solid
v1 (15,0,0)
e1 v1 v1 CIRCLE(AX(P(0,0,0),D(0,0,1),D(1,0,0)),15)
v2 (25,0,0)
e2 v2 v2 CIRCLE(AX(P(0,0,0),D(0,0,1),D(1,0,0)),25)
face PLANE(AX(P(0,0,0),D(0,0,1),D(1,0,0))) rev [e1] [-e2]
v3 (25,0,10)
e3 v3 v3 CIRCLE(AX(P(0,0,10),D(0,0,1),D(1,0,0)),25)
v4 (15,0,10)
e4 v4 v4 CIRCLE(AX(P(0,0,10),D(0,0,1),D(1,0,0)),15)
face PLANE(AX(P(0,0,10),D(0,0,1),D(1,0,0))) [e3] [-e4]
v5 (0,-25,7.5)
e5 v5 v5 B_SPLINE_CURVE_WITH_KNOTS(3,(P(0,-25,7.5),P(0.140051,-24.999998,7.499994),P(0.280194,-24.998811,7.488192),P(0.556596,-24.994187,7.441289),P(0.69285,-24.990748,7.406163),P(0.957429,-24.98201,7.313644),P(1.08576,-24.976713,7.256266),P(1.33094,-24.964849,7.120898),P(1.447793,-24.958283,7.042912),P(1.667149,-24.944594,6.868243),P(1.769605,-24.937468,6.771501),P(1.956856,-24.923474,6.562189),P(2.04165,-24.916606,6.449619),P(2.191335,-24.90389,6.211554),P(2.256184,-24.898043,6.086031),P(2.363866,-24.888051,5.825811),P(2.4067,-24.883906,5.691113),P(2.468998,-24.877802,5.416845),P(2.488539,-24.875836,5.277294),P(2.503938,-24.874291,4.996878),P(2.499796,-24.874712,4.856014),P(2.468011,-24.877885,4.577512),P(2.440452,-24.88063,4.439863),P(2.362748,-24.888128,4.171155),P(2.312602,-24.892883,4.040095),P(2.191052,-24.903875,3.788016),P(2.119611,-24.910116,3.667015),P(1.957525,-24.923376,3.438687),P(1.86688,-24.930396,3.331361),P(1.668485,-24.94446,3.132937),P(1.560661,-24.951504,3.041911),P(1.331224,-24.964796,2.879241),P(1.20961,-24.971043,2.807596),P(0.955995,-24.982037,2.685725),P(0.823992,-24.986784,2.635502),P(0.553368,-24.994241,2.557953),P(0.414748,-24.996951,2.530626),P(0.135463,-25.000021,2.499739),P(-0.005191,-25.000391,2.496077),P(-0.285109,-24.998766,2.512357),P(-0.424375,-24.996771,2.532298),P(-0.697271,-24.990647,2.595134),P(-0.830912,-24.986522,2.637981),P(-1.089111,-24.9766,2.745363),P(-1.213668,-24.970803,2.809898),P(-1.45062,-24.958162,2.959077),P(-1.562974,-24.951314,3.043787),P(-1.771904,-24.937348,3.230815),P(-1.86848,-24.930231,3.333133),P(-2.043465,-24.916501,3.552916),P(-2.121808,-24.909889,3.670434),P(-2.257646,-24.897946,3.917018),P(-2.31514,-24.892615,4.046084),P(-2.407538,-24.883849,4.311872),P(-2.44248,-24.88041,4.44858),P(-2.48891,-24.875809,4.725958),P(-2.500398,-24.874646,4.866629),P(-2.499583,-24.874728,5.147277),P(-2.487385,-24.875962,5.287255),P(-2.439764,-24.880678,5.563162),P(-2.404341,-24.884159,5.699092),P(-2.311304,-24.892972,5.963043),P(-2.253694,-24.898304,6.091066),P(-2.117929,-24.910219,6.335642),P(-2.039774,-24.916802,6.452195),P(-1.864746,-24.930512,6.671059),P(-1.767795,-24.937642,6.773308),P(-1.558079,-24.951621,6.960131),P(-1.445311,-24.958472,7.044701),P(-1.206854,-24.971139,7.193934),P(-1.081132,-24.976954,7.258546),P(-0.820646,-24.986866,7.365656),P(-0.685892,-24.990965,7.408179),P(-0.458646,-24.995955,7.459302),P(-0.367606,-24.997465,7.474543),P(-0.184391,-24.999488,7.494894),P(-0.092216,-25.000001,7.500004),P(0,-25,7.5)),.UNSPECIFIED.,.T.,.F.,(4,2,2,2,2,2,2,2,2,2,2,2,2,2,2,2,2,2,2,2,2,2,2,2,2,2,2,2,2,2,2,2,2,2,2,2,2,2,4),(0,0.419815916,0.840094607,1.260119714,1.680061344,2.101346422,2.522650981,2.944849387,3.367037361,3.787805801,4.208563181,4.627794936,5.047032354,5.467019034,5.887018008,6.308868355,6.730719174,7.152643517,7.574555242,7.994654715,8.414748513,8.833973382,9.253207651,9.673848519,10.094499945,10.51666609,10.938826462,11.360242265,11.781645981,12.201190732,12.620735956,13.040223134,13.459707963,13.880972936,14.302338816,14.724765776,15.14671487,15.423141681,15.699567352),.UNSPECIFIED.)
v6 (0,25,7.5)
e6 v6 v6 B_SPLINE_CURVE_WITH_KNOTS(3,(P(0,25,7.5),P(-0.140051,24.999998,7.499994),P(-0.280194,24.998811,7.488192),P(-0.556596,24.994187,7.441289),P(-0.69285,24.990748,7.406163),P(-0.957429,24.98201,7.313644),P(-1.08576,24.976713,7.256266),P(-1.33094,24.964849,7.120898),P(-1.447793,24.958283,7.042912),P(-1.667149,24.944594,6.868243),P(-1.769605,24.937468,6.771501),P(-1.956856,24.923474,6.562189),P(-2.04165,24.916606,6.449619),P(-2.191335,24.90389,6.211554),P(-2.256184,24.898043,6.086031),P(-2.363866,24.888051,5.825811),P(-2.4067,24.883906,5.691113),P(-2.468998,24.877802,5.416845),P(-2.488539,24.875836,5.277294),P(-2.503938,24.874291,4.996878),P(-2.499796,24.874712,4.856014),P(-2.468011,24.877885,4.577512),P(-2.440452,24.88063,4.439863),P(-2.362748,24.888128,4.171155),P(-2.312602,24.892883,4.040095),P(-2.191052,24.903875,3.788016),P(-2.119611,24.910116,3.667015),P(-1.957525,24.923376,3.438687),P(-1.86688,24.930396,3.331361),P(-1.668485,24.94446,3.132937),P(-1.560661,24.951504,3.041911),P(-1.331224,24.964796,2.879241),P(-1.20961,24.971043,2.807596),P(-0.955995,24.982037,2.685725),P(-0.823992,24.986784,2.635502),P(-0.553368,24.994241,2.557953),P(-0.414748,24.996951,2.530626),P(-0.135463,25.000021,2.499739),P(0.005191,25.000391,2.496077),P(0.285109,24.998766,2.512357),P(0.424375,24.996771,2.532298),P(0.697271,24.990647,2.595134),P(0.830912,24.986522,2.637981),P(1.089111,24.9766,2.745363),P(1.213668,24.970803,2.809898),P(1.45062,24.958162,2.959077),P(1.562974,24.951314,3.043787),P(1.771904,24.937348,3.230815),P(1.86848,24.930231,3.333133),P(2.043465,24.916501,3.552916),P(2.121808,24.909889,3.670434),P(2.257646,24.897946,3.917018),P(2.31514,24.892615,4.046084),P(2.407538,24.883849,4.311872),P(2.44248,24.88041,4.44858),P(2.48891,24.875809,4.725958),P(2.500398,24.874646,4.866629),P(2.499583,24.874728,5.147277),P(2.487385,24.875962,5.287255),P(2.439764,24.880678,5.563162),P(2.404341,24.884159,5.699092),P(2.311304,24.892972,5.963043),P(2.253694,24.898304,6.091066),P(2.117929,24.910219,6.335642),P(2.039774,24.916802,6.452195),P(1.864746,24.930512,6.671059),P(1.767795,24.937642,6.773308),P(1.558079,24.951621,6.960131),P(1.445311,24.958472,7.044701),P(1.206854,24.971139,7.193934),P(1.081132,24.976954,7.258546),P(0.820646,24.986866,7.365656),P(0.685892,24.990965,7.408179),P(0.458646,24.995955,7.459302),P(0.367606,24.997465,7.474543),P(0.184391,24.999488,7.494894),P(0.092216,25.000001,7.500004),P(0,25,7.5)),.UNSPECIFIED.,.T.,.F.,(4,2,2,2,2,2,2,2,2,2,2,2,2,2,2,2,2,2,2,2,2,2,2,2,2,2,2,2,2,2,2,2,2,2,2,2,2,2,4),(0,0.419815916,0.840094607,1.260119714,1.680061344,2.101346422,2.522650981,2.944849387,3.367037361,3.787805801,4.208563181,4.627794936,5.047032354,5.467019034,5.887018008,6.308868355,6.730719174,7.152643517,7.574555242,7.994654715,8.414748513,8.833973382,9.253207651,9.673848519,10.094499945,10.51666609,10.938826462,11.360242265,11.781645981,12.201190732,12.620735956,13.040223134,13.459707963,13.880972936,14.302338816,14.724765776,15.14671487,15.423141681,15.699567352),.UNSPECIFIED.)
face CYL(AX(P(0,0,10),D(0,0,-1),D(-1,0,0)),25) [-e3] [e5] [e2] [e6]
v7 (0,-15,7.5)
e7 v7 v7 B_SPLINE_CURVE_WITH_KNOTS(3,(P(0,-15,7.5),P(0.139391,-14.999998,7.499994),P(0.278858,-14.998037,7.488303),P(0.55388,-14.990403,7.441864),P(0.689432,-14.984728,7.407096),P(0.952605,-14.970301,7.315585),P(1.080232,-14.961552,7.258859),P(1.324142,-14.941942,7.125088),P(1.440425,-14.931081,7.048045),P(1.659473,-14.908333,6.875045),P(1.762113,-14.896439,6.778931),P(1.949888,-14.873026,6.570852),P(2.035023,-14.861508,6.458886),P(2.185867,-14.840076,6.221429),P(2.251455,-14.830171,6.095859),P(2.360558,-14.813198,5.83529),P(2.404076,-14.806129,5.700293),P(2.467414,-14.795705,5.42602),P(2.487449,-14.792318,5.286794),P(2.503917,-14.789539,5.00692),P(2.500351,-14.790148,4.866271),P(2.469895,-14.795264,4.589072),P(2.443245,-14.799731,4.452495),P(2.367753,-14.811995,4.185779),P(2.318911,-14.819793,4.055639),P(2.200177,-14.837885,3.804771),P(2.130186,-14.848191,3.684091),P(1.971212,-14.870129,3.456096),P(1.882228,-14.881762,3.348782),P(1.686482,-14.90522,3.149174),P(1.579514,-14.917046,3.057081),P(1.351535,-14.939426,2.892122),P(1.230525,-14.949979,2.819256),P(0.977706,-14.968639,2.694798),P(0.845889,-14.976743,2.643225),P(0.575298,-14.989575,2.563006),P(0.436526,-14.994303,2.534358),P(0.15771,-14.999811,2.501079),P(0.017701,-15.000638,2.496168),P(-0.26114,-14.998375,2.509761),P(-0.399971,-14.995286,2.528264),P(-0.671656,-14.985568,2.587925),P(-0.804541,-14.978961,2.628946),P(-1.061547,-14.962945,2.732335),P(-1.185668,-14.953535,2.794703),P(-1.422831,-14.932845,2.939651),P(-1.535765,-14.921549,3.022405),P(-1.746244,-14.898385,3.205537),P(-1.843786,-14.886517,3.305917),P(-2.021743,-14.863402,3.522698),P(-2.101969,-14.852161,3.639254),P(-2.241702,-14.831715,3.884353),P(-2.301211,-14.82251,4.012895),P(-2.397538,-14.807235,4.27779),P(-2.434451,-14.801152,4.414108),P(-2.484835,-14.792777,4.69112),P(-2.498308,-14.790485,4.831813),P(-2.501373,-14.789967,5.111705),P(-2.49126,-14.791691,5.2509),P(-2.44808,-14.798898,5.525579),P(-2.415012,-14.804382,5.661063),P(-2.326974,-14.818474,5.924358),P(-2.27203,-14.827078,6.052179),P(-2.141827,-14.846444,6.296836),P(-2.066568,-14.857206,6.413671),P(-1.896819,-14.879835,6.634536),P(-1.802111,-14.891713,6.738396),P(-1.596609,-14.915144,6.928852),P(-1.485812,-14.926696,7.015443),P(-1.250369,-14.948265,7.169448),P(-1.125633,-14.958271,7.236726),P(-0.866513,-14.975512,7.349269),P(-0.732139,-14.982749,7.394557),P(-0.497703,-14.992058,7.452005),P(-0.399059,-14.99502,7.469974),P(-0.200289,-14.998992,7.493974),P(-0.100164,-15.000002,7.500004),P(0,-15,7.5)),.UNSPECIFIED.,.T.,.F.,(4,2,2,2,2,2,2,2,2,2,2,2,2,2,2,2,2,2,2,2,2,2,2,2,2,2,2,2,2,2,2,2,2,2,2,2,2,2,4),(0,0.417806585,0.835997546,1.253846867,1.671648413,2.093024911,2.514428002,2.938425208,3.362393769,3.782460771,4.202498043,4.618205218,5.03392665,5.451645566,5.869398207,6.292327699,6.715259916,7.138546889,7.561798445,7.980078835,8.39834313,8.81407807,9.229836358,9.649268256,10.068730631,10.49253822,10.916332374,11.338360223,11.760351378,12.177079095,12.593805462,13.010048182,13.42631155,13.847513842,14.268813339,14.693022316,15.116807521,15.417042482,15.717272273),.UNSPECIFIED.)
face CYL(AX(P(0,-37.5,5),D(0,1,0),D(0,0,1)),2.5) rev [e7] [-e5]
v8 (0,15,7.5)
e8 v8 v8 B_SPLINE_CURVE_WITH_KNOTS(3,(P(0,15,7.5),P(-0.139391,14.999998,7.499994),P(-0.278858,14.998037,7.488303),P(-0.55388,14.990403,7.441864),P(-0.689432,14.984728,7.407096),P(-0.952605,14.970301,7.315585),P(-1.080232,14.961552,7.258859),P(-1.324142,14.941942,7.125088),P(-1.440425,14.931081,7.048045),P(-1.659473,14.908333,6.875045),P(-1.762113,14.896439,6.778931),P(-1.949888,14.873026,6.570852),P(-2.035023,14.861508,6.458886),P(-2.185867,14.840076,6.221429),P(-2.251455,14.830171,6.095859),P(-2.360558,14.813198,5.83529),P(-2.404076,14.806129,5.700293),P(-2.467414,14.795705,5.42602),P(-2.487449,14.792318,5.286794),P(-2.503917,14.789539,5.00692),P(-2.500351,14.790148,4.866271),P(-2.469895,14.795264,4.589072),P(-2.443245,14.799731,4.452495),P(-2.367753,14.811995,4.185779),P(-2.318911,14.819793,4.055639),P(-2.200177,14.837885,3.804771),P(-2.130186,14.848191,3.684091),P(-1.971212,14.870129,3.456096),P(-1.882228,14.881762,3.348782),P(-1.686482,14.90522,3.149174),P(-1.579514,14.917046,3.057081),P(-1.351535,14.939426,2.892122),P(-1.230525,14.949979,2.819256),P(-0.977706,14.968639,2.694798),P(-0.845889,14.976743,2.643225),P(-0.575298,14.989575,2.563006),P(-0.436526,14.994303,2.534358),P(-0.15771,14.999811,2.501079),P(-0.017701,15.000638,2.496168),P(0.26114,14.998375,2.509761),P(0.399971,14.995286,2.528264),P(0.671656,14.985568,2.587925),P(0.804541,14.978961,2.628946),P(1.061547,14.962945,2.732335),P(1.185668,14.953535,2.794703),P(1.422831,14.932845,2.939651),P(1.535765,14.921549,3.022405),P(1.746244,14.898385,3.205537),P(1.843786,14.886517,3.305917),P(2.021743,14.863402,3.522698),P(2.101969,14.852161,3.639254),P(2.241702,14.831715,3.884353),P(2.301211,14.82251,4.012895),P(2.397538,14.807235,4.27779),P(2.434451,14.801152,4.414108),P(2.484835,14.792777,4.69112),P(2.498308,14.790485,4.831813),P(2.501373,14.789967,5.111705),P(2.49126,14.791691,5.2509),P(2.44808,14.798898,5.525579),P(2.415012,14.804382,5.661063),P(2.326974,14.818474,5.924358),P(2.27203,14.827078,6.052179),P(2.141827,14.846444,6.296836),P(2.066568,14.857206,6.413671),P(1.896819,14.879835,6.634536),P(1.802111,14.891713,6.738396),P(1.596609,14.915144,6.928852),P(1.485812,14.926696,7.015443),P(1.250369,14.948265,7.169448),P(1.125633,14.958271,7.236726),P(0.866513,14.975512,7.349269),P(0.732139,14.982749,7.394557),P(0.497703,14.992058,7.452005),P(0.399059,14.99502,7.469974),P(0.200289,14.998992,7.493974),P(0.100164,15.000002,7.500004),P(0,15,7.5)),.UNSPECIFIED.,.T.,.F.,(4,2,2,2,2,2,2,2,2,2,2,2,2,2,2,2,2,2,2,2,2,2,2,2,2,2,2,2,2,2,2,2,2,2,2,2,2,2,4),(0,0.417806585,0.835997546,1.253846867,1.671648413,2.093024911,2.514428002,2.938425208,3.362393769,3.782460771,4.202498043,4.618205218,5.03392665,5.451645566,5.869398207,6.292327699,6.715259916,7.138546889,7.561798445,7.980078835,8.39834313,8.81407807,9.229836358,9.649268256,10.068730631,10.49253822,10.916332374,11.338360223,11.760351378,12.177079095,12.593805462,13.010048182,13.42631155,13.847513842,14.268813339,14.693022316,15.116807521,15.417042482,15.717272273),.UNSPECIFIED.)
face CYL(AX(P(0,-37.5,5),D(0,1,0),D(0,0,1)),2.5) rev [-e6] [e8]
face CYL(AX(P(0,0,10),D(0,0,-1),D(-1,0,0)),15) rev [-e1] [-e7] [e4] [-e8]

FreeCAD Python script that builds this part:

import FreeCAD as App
import Part
import Sketcher

doc = App.newDocument("Part")
body = doc.addObject("PartDesign::Body", "Body")

# Sketch on XY plane
sketch1 = body.newObject("Sketcher::SketchObject", "Sketch")
sketch1.AttachmentSupport = (doc.getObject("XY_Plane"), [""])
sketch1.MapMode = "FlatFace"
sketch1.addGeometry(Part.Circle(App.Vector(0, 0, 0), App.Vector(0, 0, 1), 25), False)
sketch1.addGeometry(Part.Circle(App.Vector(0, 0, 0), App.Vector(0, 0, 1), 15), False)
sketch1.addConstraint(Sketcher.Constraint("Coincident", 0, 3, -1, 1))
sketch1.addConstraint(Sketcher.Constraint("Coincident", 1, 3, -1, 1))
sketch1.addConstraint(Sketcher.Constraint("Diameter", 0, 50.0))
sketch1.addConstraint(Sketcher.Constraint("Diameter", 1, 30.0))
pad1 = body.newObject("PartDesign::Pad", "Pad")
pad1.Profile = sketch1
pad1.Length = 10

# Sketch on XZ plane
sketch2 = body.newObject("Sketcher::SketchObject", "Sketch001")
sketch2.AttachmentSupport = (doc.getObject("XZ_Plane"), [""])
sketch2.MapMode = "FlatFace"
sketch2.addGeometry(Part.Circle(App.Vector(0, 5, 0), App.Vector(0, 0, 1), 2.5), False)
sketch2.addConstraint(Sketcher.Constraint("PointOnObject", 0, 3, -2))
sketch2.addConstraint(Sketcher.Constraint("Diameter", 0, 5.0))
sketch2.addConstraint(Sketcher.Constraint("DistanceY", -1, 1, 0, 3, 5.0))
pocket1 = body.newObject("PartDesign::Pocket", "Pocket")
pocket1.Profile = sketch2
pocket1.Length = 75
pocket1.Midplane = True

doc.recompute()
